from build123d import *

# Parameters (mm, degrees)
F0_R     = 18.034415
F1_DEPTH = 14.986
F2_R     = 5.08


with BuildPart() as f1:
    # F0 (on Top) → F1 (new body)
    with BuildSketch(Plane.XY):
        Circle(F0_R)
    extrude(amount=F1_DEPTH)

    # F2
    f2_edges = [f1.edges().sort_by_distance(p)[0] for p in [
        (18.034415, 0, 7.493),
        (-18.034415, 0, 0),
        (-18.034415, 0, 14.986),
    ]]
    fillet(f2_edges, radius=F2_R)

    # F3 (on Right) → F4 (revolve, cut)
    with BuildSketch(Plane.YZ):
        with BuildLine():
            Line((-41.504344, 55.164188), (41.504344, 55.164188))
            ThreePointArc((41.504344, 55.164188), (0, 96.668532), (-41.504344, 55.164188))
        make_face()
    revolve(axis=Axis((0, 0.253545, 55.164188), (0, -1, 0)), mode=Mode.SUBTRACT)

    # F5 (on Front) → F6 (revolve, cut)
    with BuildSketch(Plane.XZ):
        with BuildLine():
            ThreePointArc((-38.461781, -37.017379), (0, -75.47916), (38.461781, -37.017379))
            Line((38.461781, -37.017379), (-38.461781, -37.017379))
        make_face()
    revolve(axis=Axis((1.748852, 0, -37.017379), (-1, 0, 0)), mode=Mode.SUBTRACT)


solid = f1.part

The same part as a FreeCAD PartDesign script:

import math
import FreeCAD as App
import Part
import Sketcher
from FreeCAD import Vector
Q = App.Units.Quantity

doc = App.newDocument("Part")
body = doc.addObject("PartDesign::Body", "Body")

# Sketch on XY plane
sketch1 = doc.addObject("Sketcher::SketchObject", "Sketch")
body.addObject(sketch1)
sketch1.AttachmentSupport = (doc.XY_Plane, [""])
sketch1.MapMode = "FlatFace"
sketch1.addGeometry(Part.Circle(Vector(0, 0, 0), Vector(0, 0, 1), 18), False)
sketch1.addConstraint(Sketcher.Constraint("Coincident", 0, 3, -1, 1))
sketch1.addConstraint(Sketcher.Constraint("Diameter", 0, Q("36.06883 mm")))
pad1 = doc.addObject("PartDesign::Pad", "Pad")
body.addObject(pad1)
pad1.Profile = sketch1
pad1.Length = Q("0.59 in")
doc.recompute()

fillet = doc.addObject("PartDesign::Fillet", "Fillet")
body.addObject(fillet)
fillet.Base = (pad1, ["Edge1"])
fillet.UseAllEdges = True
fillet.Radius = Q("0.2 in")

# Sketch on YZ plane
sketch2 = doc.addObject("Sketcher::SketchObject", "Sketch001")
body.addObject(sketch2)
sketch2.AttachmentSupport = (doc.YZ_Plane, [""])
sketch2.MapMode = "FlatFace"
sketch2.addGeometry(Part.LineSegment(Vector(-42, 55, 0), Vector(42, 55, 0)), False)
sketch2.addGeometry(Part.ArcOfCircle(Part.Circle(Vector(0, 55, 0), Vector(0, 0, 1), 42), math.radians(0), math.radians(180)), False)
sketch2.addGeometry(Part.LineSegment(Vector(42, 55, 0), Vector(-42, 55, 0)), True)  # axis
sketch2.addConstraint(Sketcher.Constraint("Coincident", 0, 1, 1, 2))
sketch2.addConstraint(Sketcher.Constraint("Coincident", 1, 1, 0, 2))
sketch2.addConstraint(Sketcher.Constraint("Horizontal", 0))
sketch2.addConstraint(Sketcher.Constraint("Horizontal", 2))
sketch2.addConstraint(Sketcher.Constraint("Coincident", 2, 1, 1, 1))
sketch2.addConstraint(Sketcher.Constraint("PointOnObject", 1, 3, -2))
sketch2.addConstraint(Sketcher.Constraint("Horizontal", 1, 3, 0, 1))
sketch2.addConstraint(Sketcher.Constraint("Equal", 0, 2))
sketch2.addConstraint(Sketcher.Constraint("Radius", 1, Q("41.504344 mm")))
sketch2.addConstraint(Sketcher.Constraint("DistanceY", -1, 1, 1, 3, Q("55.164188 mm")))
groove = doc.addObject("PartDesign::Groove", "Groove")
body.addObject(groove)
groove.Profile = sketch2
groove.ReferenceAxis = (sketch2, ["Axis0"])
groove.Angle = 360

# Sketch on XZ plane
sketch3 = doc.addObject("Sketcher::SketchObject", "Sketch002")
body.addObject(sketch3)
sketch3.AttachmentSupport = (doc.XZ_Plane, [""])
sketch3.MapMode = "FlatFace"
sketch3.addGeometry(Part.ArcOfCircle(Part.Circle(Vector(0, -37, 0), Vector(0, 0, 1), 38), math.radians(180), math.radians(360)), False)
sketch3.addGeometry(Part.LineSegment(Vector(38, -37, 0), Vector(-38, -37, 0)), False)
sketch3.addGeometry(Part.LineSegment(Vector(38, -37, 0), Vector(-38, -37, 0)), True)  # axis
sketch3.addConstraint(Sketcher.Constraint("Coincident", 0, 1, 1, 2))
sketch3.addConstraint(Sketcher.Constraint("Coincident", 1, 1, 0, 2))
sketch3.addConstraint(Sketcher.Constraint("Horizontal", 1))
sketch3.addConstraint(Sketcher.Constraint("Horizontal", 2))
sketch3.addConstraint(Sketcher.Constraint("Coincident", 2, 1, 1, 1))
sketch3.addConstraint(Sketcher.Constraint("PointOnObject", 0, 3, -2))
sketch3.addConstraint(Sketcher.Constraint("Equal", 1, 2))
sketch3.addConstraint(Sketcher.Constraint("Radius", 0, Q("38.461781 mm")))
sketch3.addConstraint(Sketcher.Constraint("DistanceY", 0, 3, -1, 1, Q("37.017379 mm")))
sketch3.addConstraint(Sketcher.Constraint("DistanceY", 0, 1, -1, 1, Q("37.017379 mm")))
groove2 = doc.addObject("PartDesign::Groove", "Groove001")
body.addObject(groove2)
groove2.Profile = sketch3
groove2.ReferenceAxis = (sketch3, ["Axis0"])
groove2.Angle = 360

doc.recompute()
